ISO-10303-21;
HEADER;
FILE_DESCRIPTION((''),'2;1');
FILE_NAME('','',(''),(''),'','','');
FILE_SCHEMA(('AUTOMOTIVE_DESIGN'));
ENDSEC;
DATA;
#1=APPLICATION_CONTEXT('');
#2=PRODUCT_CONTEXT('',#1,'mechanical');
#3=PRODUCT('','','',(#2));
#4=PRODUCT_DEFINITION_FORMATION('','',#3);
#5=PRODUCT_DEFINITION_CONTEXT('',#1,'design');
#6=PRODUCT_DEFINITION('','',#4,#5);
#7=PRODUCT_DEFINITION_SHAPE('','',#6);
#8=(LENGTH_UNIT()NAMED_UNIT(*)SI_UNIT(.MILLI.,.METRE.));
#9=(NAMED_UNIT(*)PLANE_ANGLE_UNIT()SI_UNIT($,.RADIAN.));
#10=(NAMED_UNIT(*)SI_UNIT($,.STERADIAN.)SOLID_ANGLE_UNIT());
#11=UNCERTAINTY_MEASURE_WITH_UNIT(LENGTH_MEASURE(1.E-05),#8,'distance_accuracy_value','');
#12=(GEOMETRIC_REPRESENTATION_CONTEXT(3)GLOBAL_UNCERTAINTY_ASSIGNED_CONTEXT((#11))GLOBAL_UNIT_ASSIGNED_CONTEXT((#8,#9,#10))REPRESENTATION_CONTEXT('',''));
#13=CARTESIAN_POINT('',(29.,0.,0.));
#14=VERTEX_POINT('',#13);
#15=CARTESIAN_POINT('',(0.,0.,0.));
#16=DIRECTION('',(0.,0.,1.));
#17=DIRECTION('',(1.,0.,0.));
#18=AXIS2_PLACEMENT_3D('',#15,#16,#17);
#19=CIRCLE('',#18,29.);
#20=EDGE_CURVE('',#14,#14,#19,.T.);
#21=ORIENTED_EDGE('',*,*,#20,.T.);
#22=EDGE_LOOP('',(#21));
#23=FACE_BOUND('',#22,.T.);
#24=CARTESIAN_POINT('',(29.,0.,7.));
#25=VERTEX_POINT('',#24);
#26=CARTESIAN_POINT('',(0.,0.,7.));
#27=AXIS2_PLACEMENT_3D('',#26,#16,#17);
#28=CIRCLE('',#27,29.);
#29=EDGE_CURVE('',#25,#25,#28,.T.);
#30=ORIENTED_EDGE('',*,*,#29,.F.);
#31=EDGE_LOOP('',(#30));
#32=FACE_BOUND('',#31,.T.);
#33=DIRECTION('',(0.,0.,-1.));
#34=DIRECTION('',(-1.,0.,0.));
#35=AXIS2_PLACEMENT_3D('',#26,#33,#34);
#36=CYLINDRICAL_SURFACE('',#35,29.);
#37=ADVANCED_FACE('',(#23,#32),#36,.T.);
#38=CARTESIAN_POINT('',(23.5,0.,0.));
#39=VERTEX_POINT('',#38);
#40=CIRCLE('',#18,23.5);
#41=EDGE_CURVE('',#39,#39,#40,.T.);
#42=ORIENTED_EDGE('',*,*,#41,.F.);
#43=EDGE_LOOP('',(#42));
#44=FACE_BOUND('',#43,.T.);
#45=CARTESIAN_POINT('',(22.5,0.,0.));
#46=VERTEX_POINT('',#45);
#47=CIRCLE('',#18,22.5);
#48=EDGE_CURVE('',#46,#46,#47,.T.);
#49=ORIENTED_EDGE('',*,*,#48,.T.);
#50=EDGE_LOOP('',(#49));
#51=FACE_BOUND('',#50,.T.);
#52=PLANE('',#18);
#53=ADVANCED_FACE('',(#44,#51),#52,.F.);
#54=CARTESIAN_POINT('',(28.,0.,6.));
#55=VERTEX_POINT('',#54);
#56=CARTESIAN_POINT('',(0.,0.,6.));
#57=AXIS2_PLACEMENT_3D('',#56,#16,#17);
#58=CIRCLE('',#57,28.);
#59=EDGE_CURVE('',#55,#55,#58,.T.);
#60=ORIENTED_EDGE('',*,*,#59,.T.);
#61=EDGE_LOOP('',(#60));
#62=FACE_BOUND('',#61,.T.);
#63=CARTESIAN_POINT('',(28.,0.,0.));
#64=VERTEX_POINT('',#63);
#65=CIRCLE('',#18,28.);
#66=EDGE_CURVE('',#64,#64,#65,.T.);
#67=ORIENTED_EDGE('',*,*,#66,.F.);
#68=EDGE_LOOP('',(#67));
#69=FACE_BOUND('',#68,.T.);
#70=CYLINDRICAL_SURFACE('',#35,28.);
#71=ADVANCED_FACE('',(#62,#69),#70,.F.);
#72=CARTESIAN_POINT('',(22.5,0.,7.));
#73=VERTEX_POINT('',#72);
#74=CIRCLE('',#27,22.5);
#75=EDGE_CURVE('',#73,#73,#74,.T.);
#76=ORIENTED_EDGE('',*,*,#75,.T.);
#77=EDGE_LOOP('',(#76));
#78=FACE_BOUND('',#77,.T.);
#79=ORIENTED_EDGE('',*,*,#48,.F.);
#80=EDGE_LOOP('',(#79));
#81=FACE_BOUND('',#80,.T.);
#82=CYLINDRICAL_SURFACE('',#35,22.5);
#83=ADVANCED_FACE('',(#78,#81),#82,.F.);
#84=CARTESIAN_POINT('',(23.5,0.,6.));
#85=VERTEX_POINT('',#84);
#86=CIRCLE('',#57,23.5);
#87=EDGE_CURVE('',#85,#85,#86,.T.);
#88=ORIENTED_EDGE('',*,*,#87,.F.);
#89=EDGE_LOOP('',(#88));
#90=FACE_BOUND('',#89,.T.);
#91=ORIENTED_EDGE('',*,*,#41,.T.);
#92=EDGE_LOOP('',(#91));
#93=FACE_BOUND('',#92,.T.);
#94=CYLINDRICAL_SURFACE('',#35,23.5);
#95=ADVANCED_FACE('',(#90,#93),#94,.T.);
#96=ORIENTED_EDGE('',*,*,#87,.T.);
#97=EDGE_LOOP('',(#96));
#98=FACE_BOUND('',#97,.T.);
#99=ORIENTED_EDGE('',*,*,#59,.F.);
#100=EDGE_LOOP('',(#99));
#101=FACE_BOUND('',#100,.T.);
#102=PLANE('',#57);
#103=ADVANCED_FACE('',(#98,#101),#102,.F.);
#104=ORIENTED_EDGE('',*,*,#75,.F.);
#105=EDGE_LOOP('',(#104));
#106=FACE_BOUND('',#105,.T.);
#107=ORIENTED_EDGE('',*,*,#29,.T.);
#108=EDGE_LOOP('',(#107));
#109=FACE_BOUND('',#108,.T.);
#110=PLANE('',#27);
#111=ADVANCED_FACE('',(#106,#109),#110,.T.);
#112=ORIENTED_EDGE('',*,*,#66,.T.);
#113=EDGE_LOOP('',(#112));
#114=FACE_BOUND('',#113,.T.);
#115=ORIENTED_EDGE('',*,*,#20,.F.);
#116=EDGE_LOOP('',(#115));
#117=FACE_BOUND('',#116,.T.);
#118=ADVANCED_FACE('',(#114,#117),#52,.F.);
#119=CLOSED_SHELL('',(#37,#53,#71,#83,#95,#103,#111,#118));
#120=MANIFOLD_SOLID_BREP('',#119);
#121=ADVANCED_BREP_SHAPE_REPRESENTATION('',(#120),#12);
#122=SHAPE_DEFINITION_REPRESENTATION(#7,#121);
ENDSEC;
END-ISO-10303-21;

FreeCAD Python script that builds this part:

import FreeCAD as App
import Part
import Sketcher


def faces_at(feature, points):
    """Names of the faces that lie closest to the given points."""
    faces = feature.Shape.Faces
    near = lambda p: min(range(len(faces)), key=lambda i: faces[i].distToShape(Part.Vertex(*p))[0])
    return sorted({f"Face{near(p) + 1}" for p in points})

doc = App.newDocument("Part")
body = doc.addObject("PartDesign::Body", "Body")

# Sketch on XY plane
sketch1 = body.newObject("Sketcher::SketchObject", "Sketch")
sketch1.AttachmentSupport = (doc.getObject("XY_Plane"), [""])
sketch1.MapMode = "FlatFace"
sketch1.addGeometry([
    Part.Circle(App.Vector(0, 0, 0), App.Vector(0, 0, 1), 29),
    Part.Circle(App.Vector(0, 0, 0), App.Vector(0, 0, 1), 22),
], False)
sketch1.addConstraint([
    Sketcher.Constraint("Coincident", 0, 3, -1, 1),
    Sketcher.Constraint("Coincident", 1, 3, -1, 1),
    Sketcher.Constraint("Diameter", 0, 58.0),
    Sketcher.Constraint("Diameter", 1, 45.0),
])
pad1 = body.newObject("PartDesign::Pad", "Pad")
pad1.Profile = sketch1
pad1.Length = 7
doc.recompute()

thickness = body.newObject("PartDesign::Thickness", "Thickness")
thickness.Base = (pad1, faces_at(pad1, [(-23.2, 0, 0)]))
thickness.Value = 1
thickness.Reversed = True
thickness.Join = "Intersection"

doc.recompute()
